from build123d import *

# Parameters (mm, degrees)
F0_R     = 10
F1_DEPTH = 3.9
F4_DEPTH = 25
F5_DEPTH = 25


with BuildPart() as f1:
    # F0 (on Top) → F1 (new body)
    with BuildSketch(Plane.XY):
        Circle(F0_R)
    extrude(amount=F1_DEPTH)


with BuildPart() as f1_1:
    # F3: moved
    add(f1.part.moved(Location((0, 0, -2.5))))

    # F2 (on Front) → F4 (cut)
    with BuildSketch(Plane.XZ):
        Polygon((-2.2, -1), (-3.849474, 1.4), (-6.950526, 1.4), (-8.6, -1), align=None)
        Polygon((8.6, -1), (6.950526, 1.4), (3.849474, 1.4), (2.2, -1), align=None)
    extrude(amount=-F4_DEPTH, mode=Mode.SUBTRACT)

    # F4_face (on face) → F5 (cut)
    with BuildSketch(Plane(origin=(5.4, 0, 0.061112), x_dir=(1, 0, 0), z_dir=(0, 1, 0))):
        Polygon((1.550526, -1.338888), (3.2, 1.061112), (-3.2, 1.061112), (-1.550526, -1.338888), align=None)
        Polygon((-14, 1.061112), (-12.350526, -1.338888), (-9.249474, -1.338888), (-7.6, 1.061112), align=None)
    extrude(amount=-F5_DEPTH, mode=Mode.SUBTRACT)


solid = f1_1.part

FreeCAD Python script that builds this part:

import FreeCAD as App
import Part
import Sketcher
Q = App.Units.Quantity

doc = App.newDocument("Part")
body = doc.addObject("PartDesign::Body", "Body")

sketch1 = body.newObject("Sketcher::SketchObject", "Sketch")
sketch1.AttachmentSupport = (doc.getObject("XY_Plane"), [""])
sketch1.MapMode = "FlatFace"
sketch1.addGeometry(Part.Circle(App.Vector(0, 0, 0), App.Vector(0, 0, 1), 10), False)
sketch1.addConstraint([
    Sketcher.Constraint("Coincident", 0, 3, -1, 1),
    Sketcher.Constraint("Diameter", 0, 20.0),
])
pad1 = body.newObject("PartDesign::Pad", "Pad")
pad1.Profile = sketch1
pad1.Length = 3.9
body2 = doc.addObject("PartDesign::Body", "Body001")
doc.recompute()

body.Placement = App.Placement(App.Vector(0, 0, -2.5), App.Rotation(App.Vector(0, 0, 1), 0))
boolean = body2.newObject("PartDesign::Boolean", "Boolean")
boolean.Type = "Fuse"
boolean.addObjects([body])

sketch2 = body2.newObject("Sketcher::SketchObject", "Sketch001")
sketch2.AttachmentSupport = (doc.getObject("XZ_Plane001"), [""])
sketch2.MapMode = "FlatFace"
sketch2.addGeometry([
    Part.LineSegment(App.Vector(-2.2, -1, 0), App.Vector(-3.8, 1.4, 0)),
    Part.LineSegment(App.Vector(-3.8, 1.4, 0), App.Vector(-7, 1.4, 0)),
    Part.LineSegment(App.Vector(-7, 1.4, 0), App.Vector(-8.6, -1, 0)),
    Part.LineSegment(App.Vector(-8.6, -1, 0), App.Vector(-2.2, -1, 0)),
    Part.LineSegment(App.Vector(8.6, -1, 0), App.Vector(7, 1.4, 0)),
    Part.LineSegment(App.Vector(7, 1.4, 0), App.Vector(3.8, 1.4, 0)),
    Part.LineSegment(App.Vector(3.8, 1.4, 0), App.Vector(2.2, -1, 0)),
    Part.LineSegment(App.Vector(2.2, -1, 0), App.Vector(8.6, -1, 0)),
], False)
sketch2.addConstraint([
    Sketcher.Constraint("Coincident", 0, 2, 1, 1),
    Sketcher.Constraint("Coincident", 1, 2, 2, 1),
    Sketcher.Constraint("Coincident", 2, 2, 3, 1),
    Sketcher.Constraint("Coincident", 3, 2, 0, 1),
    Sketcher.Constraint("Coincident", 4, 2, 5, 1),
    Sketcher.Constraint("Coincident", 5, 2, 6, 1),
    Sketcher.Constraint("Coincident", 6, 2, 7, 1),
    Sketcher.Constraint("Coincident", 7, 2, 4, 1),
    Sketcher.Constraint("Horizontal", 1),
    Sketcher.Constraint("Horizontal", 3),
    Sketcher.Constraint("Horizontal", 5),
    Sketcher.Constraint("Horizontal", 7),
    Sketcher.Constraint("Symmetric", 1, 2, 4, 2, -2),
    Sketcher.Constraint("Symmetric", 3, 2, 6, 2, -2),
    Sketcher.Constraint("Parallel", 0, 4),
    Sketcher.Constraint("Parallel", 2, 6),
    Sketcher.Constraint("Equal", 1, 5),
    Sketcher.Constraint("DistanceX", 3, 1, 3, 2, 6.4),
    Sketcher.Constraint("DistanceY", 2, 2, -1, 1, 1.0),
    Sketcher.Constraint("Angle", 0, Q("124.499995 deg")),
    Sketcher.Constraint("DistanceY", -1, 1, 0, 2, 1.4),
    Sketcher.Constraint("DistanceX", 2, 2, -1, 1, 8.6),
])
pocket1 = body2.newObject("PartDesign::Pocket", "Pocket")
pocket1.Profile = sketch2
pocket1.Length = 25

sketch3 = body2.newObject("Sketcher::SketchObject", "Sketch002")
sketch3.AttachmentSupport = (doc.getObject("XZ_Plane001"), [""])
sketch3.MapMode = "FlatFace"
sketch3.addGeometry([
    Part.LineSegment(App.Vector(7, 1.4, 0), App.Vector(8.6, -1, 0)),
    Part.LineSegment(App.Vector(8.6, -1, 0), App.Vector(2.2, -1, 0)),
    Part.LineSegment(App.Vector(2.2, -1, 0), App.Vector(3.8, 1.4, 0)),
    Part.LineSegment(App.Vector(3.8, 1.4, 0), App.Vector(7, 1.4, 0)),
    Part.LineSegment(App.Vector(-8.6, -1, 0), App.Vector(-7, 1.4, 0)),
    Part.LineSegment(App.Vector(-7, 1.4, 0), App.Vector(-3.8, 1.4, 0)),
    Part.LineSegment(App.Vector(-3.8, 1.4, 0), App.Vector(-2.2, -1, 0)),
    Part.LineSegment(App.Vector(-2.2, -1, 0), App.Vector(-8.6, -1, 0)),
], False)
sketch3.addConstraint([
    Sketcher.Constraint("Coincident", 0, 2, 1, 1),
    Sketcher.Constraint("Coincident", 1, 2, 2, 1),
    Sketcher.Constraint("Coincident", 2, 2, 3, 1),
    Sketcher.Constraint("Coincident", 3, 2, 0, 1),
    Sketcher.Constraint("Coincident", 4, 2, 5, 1),
    Sketcher.Constraint("Coincident", 5, 2, 6, 1),
    Sketcher.Constraint("Coincident", 6, 2, 7, 1),
    Sketcher.Constraint("Coincident", 7, 2, 4, 1),
    Sketcher.Constraint("Horizontal", 1),
    Sketcher.Constraint("Horizontal", 3),
    Sketcher.Constraint("Horizontal", 5),
    Sketcher.Constraint("Horizontal", 7),
    Sketcher.Constraint("Symmetric", 3, 2, 4, 2, -2),
    Sketcher.Constraint("Symmetric", 1, 2, 6, 2, -2),
    Sketcher.Constraint("Parallel", 2, 4),
    Sketcher.Constraint("Parallel", 0, 6),
    Sketcher.Constraint("Equal", 3, 5),
    Sketcher.Constraint("DistanceX", 1, 2, 1, 1, 6.4),
    Sketcher.Constraint("DistanceY", 0, 2, -1, 1, 1.0),
    Sketcher.Constraint("Angle", 0, Q("-55.500005 deg")),
    Sketcher.Constraint("DistanceX", -1, 1, 0, 2, 8.6),
    Sketcher.Constraint("DistanceY", -1, 1, 2, 2, 1.4),
])
pocket2 = body2.newObject("PartDesign::Pocket", "Pocket001")
pocket2.Profile = sketch3
pocket2.Length = 25
pocket2.Reversed = True

doc.recompute()
